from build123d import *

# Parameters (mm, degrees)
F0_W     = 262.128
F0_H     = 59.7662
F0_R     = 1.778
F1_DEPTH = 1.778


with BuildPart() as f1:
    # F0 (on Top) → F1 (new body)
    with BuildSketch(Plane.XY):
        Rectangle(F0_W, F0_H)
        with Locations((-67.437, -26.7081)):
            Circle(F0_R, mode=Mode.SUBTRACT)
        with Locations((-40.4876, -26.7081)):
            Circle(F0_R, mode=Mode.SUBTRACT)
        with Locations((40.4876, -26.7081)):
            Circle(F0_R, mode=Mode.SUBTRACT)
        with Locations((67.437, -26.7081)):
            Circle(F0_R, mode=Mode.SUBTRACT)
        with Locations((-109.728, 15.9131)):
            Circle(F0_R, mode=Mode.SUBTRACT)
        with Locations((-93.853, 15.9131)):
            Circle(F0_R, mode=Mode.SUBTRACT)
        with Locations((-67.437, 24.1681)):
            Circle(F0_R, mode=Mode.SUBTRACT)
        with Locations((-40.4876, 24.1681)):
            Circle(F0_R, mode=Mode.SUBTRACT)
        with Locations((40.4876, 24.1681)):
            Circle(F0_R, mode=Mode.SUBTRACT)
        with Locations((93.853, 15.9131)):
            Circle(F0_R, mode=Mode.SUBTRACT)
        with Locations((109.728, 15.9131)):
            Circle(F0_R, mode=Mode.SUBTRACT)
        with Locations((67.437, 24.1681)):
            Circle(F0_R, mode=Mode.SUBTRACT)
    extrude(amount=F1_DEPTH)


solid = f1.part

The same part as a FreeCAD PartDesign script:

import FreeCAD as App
import Part
import Sketcher

V = App.Vector
Q = App.Units.Quantity


def add_polygon(sketch, points):
    """Adds a closed chain of lines whose ends are joined by coincident constraints."""
    first, n = sketch.GeometryCount, len(points)
    for a, b in zip(points, points[1:] + points[:1]):
        sketch.addGeometry(Part.LineSegment(App.Vector(*a, 0), App.Vector(*b, 0)), False)
    for i in range(n):
        sketch.addConstraint(Sketcher.Constraint("Coincident", first + i, 2, first + (i + 1) % n, 1))

doc = App.newDocument("Part")
body = doc.addObject("PartDesign::Body", "Body")

sketch1 = doc.addObject("Sketcher::SketchObject", "Sketch")
body.addObject(sketch1)
sketch1.AttachmentSupport = (doc.XY_Plane, [""])
sketch1.MapMode = "FlatFace"
add_polygon(sketch1, [(-131.1, 29.9), (-131.1, -29.9), (131.1, -29.9), (131.1, 29.9)])
sketch1.addGeometry(Part.Circle(V(-67.4, -26.7, 0), V(0, 0, 1), 1.8), False)
sketch1.addGeometry(Part.Circle(V(-40.5, -26.7, 0), V(0, 0, 1), 1.8), False)
sketch1.addGeometry(Part.Circle(V(40.5, -26.7, 0), V(0, 0, 1), 1.8), False)
sketch1.addGeometry(Part.Circle(V(67.4, -26.7, 0), V(0, 0, 1), 1.8), False)
sketch1.addGeometry(Part.Circle(V(-109.7, 15.9, 0), V(0, 0, 1), 1.8), False)
sketch1.addGeometry(Part.Circle(V(-93.9, 15.9, 0), V(0, 0, 1), 1.8), False)
sketch1.addGeometry(Part.Circle(V(-67.4, 24.2, 0), V(0, 0, 1), 1.8), False)
sketch1.addGeometry(Part.Circle(V(-40.5, 24.2, 0), V(0, 0, 1), 1.8), False)
sketch1.addGeometry(Part.Circle(V(40.5, 24.2, 0), V(0, 0, 1), 1.8), False)
sketch1.addGeometry(Part.Circle(V(93.9, 15.9, 0), V(0, 0, 1), 1.8), False)
sketch1.addGeometry(Part.Circle(V(109.7, 15.9, 0), V(0, 0, 1), 1.8), False)
sketch1.addGeometry(Part.Circle(V(67.4, 24.2, 0), V(0, 0, 1), 1.8), False)
sketch1.addConstraint([
    Sketcher.Constraint("Vertical", 0),
    Sketcher.Constraint("Horizontal", 1),
    Sketcher.Constraint("Vertical", 2),
    Sketcher.Constraint("Horizontal", 3),
    Sketcher.Constraint("Equal", 4, 5),
    Sketcher.Constraint("Equal", 5, 6),
    Sketcher.Constraint("Equal", 6, 7),
    Sketcher.Constraint("Equal", 7, 8),
    Sketcher.Constraint("Equal", 8, 9),
    Sketcher.Constraint("Equal", 9, 10),
    Sketcher.Constraint("Equal", 10, 11),
    Sketcher.Constraint("Equal", 11, 12),
    Sketcher.Constraint("Equal", 12, 13),
    Sketcher.Constraint("Equal", 13, 14),
    Sketcher.Constraint("Equal", 14, 15),
    Sketcher.Constraint("Symmetric", 0, 2, 2, 2, -1, 1),
    Sketcher.Constraint("Symmetric", 5, 3, 6, 3, -2),
    Sketcher.Constraint("Symmetric", 4, 3, 7, 3, -2),
    Sketcher.Constraint("Symmetric", 11, 3, 12, 3, -2),
    Sketcher.Constraint("Symmetric", 9, 3, 13, 3, -2),
    Sketcher.Constraint("Symmetric", 8, 3, 14, 3, -2),
    Sketcher.Constraint("Symmetric", 10, 3, 15, 3, -2),
    Sketcher.Constraint("Horizontal", 4, 3, 5, 3),
    Sketcher.Constraint("Horizontal", 8, 3, 9, 3),
    Sketcher.Constraint("Horizontal", 10, 3, 11, 3),
    Sketcher.Constraint("Vertical", 4, 3, 10, 3),
    Sketcher.Constraint("Vertical", 5, 3, 11, 3),
    Sketcher.Constraint("Diameter", 4, Q("0.14 in")),
    Sketcher.Constraint("DistanceX", 1, 1, 1, 2, Q("10.32 in")),
    Sketcher.Constraint("DistanceY", 0, 2, 0, 1, Q("2.353 in")),
    Sketcher.Constraint("DistanceX", 8, 3, -1, 1, Q("4.32 in")),
    Sketcher.Constraint("DistanceX", 4, 3, 7, 3, Q("5.31 in")),
    Sketcher.Constraint("DistanceX", 9, 3, 4, 3, Q("1.04 in")),
    Sketcher.Constraint("DistanceY", 14, 3, 2, 2, Q("0.55 in")),
    Sketcher.Constraint("DistanceX", 5, 3, -1, 1, Q("1.594 in")),
    Sketcher.Constraint("DistanceY", 4, 3, 8, 3, Q("1.678 in")),
    Sketcher.Constraint("DistanceY", 9, 3, 10, 3, Q("0.325 in")),
])
pad1 = doc.addObject("PartDesign::Pad", "Pad")
body.addObject(pad1)
pad1.Profile = sketch1
pad1.Length = Q("0.07 in")

doc.recompute()
